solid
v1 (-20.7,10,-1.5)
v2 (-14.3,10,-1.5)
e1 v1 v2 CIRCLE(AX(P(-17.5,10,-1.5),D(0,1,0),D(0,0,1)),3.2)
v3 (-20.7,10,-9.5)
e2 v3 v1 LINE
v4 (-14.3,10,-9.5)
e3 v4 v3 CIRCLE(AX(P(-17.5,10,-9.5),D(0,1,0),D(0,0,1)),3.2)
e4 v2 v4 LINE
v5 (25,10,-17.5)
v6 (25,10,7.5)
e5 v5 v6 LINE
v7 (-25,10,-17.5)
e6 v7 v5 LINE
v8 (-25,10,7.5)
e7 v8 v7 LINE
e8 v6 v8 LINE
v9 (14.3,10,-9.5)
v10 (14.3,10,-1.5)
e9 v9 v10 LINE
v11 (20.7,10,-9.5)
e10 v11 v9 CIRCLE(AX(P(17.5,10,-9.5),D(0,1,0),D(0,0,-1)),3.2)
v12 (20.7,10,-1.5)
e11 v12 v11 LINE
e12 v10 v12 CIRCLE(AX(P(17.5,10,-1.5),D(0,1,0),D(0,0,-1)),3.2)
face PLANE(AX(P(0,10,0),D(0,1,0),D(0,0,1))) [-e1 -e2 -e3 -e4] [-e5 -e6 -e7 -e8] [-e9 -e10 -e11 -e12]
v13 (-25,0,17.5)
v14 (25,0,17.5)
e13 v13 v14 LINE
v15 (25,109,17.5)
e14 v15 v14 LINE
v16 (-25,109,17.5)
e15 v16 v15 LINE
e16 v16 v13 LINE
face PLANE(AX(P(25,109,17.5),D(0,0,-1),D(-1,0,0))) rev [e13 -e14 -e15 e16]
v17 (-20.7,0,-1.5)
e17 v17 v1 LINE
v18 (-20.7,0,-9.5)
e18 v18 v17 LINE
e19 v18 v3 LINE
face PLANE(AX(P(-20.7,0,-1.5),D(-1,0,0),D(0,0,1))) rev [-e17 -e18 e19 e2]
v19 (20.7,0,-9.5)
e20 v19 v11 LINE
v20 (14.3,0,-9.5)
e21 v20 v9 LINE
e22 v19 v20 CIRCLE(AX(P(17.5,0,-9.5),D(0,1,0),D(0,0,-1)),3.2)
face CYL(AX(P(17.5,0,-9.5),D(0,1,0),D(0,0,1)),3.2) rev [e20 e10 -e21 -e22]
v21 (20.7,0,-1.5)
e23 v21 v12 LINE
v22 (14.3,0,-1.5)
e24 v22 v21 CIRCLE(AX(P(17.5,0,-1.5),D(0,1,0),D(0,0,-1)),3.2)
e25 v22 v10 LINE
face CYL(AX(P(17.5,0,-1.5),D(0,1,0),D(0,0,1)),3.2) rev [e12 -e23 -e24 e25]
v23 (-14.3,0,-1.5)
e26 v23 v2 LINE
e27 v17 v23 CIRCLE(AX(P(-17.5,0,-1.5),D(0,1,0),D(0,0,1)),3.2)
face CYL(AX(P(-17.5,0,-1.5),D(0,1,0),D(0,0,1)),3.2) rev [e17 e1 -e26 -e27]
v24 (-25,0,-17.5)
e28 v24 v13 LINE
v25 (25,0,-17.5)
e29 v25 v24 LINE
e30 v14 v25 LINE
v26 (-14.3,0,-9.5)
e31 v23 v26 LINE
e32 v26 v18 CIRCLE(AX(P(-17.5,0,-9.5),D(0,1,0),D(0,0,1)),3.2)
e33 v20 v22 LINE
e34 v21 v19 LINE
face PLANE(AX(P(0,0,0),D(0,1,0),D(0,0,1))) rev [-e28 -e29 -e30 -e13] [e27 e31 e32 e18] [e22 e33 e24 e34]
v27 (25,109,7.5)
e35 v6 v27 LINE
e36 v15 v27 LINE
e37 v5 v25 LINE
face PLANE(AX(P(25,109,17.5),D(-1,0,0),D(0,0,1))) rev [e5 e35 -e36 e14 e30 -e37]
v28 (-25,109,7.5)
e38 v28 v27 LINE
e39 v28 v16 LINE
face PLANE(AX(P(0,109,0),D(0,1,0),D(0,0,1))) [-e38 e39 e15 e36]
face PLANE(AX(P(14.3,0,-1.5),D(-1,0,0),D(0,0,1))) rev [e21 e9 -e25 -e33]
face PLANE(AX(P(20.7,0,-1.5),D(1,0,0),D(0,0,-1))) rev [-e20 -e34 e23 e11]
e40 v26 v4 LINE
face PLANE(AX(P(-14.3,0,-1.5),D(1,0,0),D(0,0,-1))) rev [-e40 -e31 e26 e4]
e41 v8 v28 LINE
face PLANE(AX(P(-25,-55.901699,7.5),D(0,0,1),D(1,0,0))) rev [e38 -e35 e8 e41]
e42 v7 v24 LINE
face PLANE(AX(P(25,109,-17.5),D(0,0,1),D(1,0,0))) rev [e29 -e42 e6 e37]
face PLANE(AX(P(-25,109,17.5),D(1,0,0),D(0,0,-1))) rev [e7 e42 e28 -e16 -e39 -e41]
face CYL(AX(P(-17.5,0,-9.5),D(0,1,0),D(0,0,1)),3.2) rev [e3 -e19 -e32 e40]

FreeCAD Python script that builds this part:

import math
import FreeCAD as App
import Part
import Sketcher
from FreeCAD import Vector
Q = App.Units.Quantity

doc = App.newDocument("Part")
body = doc.addObject("PartDesign::Body", "Body")

# Sketch on XZ plane
sketch1 = doc.addObject("Sketcher::SketchObject", "Sketch")
body.addObject(sketch1)
sketch1.AttachmentSupport = (doc.XZ_Plane, [""])
sketch1.MapMode = "FlatFace"
sketch1.addGeometry([
    Part.LineSegment(Vector(-25, -18, 0), Vector(-25, 18, 0)),
    Part.LineSegment(Vector(-25, 18, 0), Vector(25, 18, 0)),
    Part.LineSegment(Vector(25, 18, 0), Vector(25, -18, 0)),
    Part.LineSegment(Vector(25, -18, 0), Vector(-25, -18, 0)),
], False)
sketch1.addConstraint([
    Sketcher.Constraint("Coincident", 0, 2, 1, 1),
    Sketcher.Constraint("Coincident", 1, 2, 2, 1),
    Sketcher.Constraint("Coincident", 2, 2, 3, 1),
    Sketcher.Constraint("Coincident", 3, 2, 0, 1),
    Sketcher.Constraint("Vertical", 0),
    Sketcher.Constraint("Horizontal", 1),
    Sketcher.Constraint("Vertical", 2),
    Sketcher.Constraint("Horizontal", 3),
    Sketcher.Constraint("Symmetric", 0, 2, 2, 2, -1, 1),
    Sketcher.Constraint("DistanceX", 1, 1, 1, 2, Q("50 mm")),
    Sketcher.Constraint("DistanceY", 0, 1, 0, 2, Q("35 mm")),
])
pad1 = doc.addObject("PartDesign::Pad", "Pad")
body.addObject(pad1)
pad1.Profile = sketch1
pad1.Length = 109
pad1.Reversed = True

# Sketch on XZ plane
sketch2 = doc.addObject("Sketcher::SketchObject", "Sketch001")
body.addObject(sketch2)
sketch2.AttachmentSupport = (doc.XZ_Plane, [""])
sketch2.MapMode = "FlatFace"
sketch2.AttachmentOffset = App.Placement(Vector(0, 0, -109), App.Rotation())
sketch2.addGeometry([
    Part.LineSegment(Vector(-25, -18, 0), Vector(-25, 8, 0)),
    Part.LineSegment(Vector(-25, 8, 0), Vector(25, 8, 0)),
    Part.LineSegment(Vector(25, 8, 0), Vector(25, -18, 0)),
    Part.LineSegment(Vector(25, -18, 0), Vector(-25, -18, 0)),
], False)
sketch2.addConstraint([
    Sketcher.Constraint("Coincident", 0, 2, 1, 1),
    Sketcher.Constraint("Coincident", 1, 2, 2, 1),
    Sketcher.Constraint("Coincident", 2, 2, 3, 1),
    Sketcher.Constraint("Coincident", 3, 2, 0, 1),
    Sketcher.Constraint("Vertical", 0),
    Sketcher.Constraint("Horizontal", 1),
    Sketcher.Constraint("Vertical", 2),
    Sketcher.Constraint("Horizontal", 3),
    Sketcher.Constraint("DistanceX", 1, 1, 1, 2, Q("50 mm")),
    Sketcher.Constraint("DistanceY", 0, 1, 0, 2, Q("25 mm")),
    Sketcher.Constraint("DistanceX", 0, 2, -1, 1, Q("25 mm")),
    Sketcher.Constraint("DistanceY", -1, 1, 0, 2, Q("7.5 mm")),
])
pocket1 = doc.addObject("PartDesign::Pocket", "Pocket")
body.addObject(pocket1)
pocket1.Profile = sketch2
pocket1.Length = 99
pocket1.Reversed = True

# Sketch on XZ plane
sketch3 = doc.addObject("Sketcher::SketchObject", "Sketch002")
body.addObject(sketch3)
sketch3.AttachmentSupport = (doc.XZ_Plane, [""])
sketch3.MapMode = "FlatFace"
sketch3.AttachmentOffset = App.Placement(Vector(0, 0, -10), App.Rotation())
sketch3.addGeometry([
    Part.LineSegment(Vector(-20.7, -9.5, 0), Vector(-20.7, -1.5, 0)),  # 0
    Part.ArcOfCircle(Part.Circle(Vector(-17.5, -1.5, 0), Vector(0, 0, 1), 3.2), math.radians(0), math.radians(180)),  # 1
    Part.LineSegment(Vector(-14.3, -1.5, 0), Vector(-14.3, -9.5, 0)),  # 2
    Part.ArcOfCircle(Part.Circle(Vector(-17.5, -9.5, 0), Vector(0, 0, 1), 3.2), math.radians(180), math.radians(360)),  # 3
    Part.LineSegment(Vector(20.7, -1.5, 0), Vector(20.7, -9.5, 0)),  # 4
    Part.ArcOfCircle(Part.Circle(Vector(17.5, -9.5, 0), Vector(0, 0, 1), 3.2), math.radians(180), math.radians(360)),  # 5
    Part.LineSegment(Vector(14.3, -9.5, 0), Vector(14.3, -1.5, 0)),  # 6
    Part.ArcOfCircle(Part.Circle(Vector(17.5, -1.5, 0), Vector(0, 0, 1), 3.2), math.radians(0), math.radians(180)),  # 7
], False)
sketch3.addConstraint([
    Sketcher.Constraint("Tangent", 0, 2, 1, 2),
    Sketcher.Constraint("Tangent", 1, 1, 2, 1),
    Sketcher.Constraint("Tangent", 2, 2, 3, 2),
    Sketcher.Constraint("Tangent", 3, 1, 0, 1),
    Sketcher.Constraint("Tangent", 4, 2, 5, 2),
    Sketcher.Constraint("Tangent", 5, 1, 6, 1),
    Sketcher.Constraint("Tangent", 6, 2, 7, 2),
    Sketcher.Constraint("Tangent", 7, 1, 4, 1),
    Sketcher.Constraint("Vertical", 0),
    Sketcher.Constraint("Vertical", 2),
    Sketcher.Constraint("Vertical", 4),
    Sketcher.Constraint("Vertical", 6),
    Sketcher.Constraint("Equal", 3, 5),
    Sketcher.Constraint("Symmetric", 3, 3, 5, 3, -2),
    Sketcher.Constraint("Horizontal", 1, 3, 7, 3),
    Sketcher.Constraint("Radius", 1, Q("3.2 mm")),
    Sketcher.Constraint("DistanceY", 0, 1, 0, 2, Q("8 mm")),
    Sketcher.Constraint("DistanceX", 3, 3, 5, 3, Q("35 mm")),
    Sketcher.Constraint("DistanceY", 1, 3, -1, 1, Q("1.5 mm")),
])
pocket2 = doc.addObject("PartDesign::Pocket", "Pocket001")
body.addObject(pocket2)
pocket2.Profile = sketch3
pocket2.Type = "ThroughAll"
pocket2.Reversed = True

doc.recompute()
